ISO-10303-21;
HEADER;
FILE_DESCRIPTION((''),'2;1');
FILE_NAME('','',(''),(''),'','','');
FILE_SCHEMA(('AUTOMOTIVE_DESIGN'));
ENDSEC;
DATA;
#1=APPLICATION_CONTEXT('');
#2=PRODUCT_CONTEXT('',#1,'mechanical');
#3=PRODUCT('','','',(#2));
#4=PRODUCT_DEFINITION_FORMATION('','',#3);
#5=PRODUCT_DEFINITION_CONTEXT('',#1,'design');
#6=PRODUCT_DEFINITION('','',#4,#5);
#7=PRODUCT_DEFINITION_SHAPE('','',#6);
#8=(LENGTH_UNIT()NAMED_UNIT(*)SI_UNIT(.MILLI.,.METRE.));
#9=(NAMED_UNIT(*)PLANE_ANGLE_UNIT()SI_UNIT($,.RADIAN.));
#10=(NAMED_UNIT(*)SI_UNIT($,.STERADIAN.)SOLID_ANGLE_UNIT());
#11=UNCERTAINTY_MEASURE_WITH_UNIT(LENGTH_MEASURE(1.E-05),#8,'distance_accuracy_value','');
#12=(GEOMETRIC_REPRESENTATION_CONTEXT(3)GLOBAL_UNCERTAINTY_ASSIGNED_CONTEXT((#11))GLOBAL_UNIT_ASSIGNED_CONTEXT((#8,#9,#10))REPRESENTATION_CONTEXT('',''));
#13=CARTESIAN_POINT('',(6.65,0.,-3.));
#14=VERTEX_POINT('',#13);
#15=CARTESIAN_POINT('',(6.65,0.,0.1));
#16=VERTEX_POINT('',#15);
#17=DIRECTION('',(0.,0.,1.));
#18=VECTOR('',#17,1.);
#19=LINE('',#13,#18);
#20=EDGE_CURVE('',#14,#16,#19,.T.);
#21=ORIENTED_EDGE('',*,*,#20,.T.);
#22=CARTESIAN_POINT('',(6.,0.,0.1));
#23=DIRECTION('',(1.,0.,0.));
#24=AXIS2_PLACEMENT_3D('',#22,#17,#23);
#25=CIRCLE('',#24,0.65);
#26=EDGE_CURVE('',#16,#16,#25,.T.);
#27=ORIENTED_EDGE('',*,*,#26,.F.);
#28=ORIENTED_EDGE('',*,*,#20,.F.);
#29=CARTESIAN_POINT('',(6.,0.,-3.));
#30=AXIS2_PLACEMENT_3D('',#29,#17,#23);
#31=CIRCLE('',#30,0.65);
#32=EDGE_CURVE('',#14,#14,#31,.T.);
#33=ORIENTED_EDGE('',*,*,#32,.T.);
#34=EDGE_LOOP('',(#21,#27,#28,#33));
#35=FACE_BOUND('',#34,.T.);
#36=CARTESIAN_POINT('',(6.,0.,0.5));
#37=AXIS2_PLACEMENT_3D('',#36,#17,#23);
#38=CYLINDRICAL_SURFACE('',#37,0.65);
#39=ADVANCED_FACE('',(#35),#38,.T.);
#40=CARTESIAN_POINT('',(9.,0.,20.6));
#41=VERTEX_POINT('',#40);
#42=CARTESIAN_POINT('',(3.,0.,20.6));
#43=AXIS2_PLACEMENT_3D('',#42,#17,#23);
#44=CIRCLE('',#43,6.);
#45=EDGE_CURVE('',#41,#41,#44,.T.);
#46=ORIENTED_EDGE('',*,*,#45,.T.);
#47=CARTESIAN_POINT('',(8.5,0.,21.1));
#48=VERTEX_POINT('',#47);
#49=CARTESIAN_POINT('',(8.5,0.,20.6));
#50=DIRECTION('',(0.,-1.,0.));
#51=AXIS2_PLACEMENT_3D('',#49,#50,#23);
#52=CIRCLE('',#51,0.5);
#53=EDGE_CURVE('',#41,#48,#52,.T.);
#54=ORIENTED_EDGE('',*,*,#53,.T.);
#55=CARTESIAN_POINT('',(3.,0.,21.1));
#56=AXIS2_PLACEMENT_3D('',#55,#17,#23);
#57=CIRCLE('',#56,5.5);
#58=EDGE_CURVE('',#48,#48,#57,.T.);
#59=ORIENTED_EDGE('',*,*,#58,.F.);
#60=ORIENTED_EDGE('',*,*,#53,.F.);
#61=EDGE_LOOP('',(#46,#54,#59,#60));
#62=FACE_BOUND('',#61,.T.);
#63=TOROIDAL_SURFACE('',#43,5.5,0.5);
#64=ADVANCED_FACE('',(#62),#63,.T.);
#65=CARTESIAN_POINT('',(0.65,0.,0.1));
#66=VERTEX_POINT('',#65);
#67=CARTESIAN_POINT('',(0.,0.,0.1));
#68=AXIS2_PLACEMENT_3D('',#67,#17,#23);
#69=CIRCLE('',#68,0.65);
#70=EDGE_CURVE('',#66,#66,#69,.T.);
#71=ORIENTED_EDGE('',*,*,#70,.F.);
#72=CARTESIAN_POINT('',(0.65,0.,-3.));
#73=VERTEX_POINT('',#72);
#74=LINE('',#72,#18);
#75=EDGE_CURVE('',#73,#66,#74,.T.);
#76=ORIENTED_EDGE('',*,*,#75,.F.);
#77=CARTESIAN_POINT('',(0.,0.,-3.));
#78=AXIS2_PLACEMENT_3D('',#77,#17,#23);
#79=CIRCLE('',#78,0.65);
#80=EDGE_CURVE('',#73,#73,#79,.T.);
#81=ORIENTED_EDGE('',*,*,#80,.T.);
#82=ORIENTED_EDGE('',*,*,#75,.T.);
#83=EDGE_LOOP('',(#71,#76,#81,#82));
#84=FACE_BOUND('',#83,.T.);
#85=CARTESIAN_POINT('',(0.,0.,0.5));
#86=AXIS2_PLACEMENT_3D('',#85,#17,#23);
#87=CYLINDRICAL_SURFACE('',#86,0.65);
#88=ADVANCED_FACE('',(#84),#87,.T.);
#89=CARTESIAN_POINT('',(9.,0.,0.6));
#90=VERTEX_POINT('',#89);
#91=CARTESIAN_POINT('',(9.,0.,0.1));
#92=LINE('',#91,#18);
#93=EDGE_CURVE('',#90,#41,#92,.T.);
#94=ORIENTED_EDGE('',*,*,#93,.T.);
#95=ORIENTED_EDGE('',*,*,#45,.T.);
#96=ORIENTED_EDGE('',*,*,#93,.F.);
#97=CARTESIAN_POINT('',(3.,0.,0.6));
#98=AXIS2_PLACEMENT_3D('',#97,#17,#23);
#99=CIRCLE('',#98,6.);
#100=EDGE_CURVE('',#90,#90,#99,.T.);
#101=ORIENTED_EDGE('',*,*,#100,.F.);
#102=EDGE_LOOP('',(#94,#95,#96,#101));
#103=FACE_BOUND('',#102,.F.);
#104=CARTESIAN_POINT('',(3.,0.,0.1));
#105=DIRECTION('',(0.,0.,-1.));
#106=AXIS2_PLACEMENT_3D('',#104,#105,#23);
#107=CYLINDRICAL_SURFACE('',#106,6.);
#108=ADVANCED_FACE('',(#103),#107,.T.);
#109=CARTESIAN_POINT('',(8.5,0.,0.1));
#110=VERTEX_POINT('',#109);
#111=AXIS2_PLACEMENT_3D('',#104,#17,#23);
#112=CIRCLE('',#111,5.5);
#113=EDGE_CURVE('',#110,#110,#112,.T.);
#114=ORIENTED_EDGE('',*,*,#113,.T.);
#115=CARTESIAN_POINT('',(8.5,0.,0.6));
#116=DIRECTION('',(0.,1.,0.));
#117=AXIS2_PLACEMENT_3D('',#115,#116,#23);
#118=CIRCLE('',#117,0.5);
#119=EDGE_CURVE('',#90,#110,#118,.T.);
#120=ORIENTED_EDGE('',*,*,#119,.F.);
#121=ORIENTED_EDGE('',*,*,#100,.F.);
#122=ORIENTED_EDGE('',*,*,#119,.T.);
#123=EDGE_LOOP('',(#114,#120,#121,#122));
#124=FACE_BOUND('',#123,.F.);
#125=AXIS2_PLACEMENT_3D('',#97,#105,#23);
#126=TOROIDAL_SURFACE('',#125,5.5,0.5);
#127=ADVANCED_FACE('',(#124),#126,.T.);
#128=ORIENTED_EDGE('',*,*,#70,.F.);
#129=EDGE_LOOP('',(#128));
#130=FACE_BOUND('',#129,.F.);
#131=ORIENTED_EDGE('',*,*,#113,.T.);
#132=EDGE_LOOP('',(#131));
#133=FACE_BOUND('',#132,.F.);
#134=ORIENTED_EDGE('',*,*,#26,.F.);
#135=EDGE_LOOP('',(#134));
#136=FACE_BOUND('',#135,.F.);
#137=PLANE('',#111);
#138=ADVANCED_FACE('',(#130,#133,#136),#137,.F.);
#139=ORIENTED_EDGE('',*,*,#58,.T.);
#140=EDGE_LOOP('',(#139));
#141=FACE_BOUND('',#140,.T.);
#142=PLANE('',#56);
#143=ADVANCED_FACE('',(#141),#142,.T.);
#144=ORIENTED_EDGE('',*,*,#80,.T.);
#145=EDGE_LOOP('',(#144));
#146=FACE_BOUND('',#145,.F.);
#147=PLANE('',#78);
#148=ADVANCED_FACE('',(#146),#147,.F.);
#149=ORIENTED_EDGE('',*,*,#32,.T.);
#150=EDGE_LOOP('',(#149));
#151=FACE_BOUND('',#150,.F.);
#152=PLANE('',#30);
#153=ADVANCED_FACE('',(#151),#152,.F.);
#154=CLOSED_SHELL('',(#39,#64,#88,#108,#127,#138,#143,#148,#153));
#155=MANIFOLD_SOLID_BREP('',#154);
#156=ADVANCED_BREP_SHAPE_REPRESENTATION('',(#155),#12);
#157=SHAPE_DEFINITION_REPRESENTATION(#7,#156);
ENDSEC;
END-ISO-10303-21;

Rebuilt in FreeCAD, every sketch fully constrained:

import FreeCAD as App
import Part
import Sketcher


def edges_at(feature, points):
    """Names of the edges that pass closest to the given points."""
    edges = feature.Shape.Edges
    near = lambda p: min(range(len(edges)), key=lambda i: edges[i].distToShape(Part.Vertex(*p))[0])
    return sorted({f"Edge{near(p) + 1}" for p in points})

doc = App.newDocument("Part")
body = doc.addObject("PartDesign::Body", "Body")
body.AllowCompound = True

sketch1 = body.newObject("Sketcher::SketchObject", "Sketch")
sketch1.AttachmentSupport = (doc.getObject("XY_Plane"), [""])
sketch1.MapMode = "FlatFace"
sketch1.AttachmentOffset = App.Placement(App.Vector(0, 0, 0.5), App.Rotation())
sketch1.addGeometry(Part.Circle(App.Vector(0, 0, 0), App.Vector(0, 0, 1), 0.7), False)
sketch1.addGeometry(Part.Circle(App.Vector(6, 0, 0), App.Vector(0, 0, 1), 0.7), False)
sketch1.addConstraint(Sketcher.Constraint("Coincident", 0, 3, -1, 1))
sketch1.addConstraint(Sketcher.Constraint("Equal", 0, 1))
sketch1.addConstraint(Sketcher.Constraint("PointOnObject", 1, 3, -1))
sketch1.addConstraint(Sketcher.Constraint("Diameter", 0, 1.3))
sketch1.addConstraint(Sketcher.Constraint("DistanceX", -1, 1, 1, 3, 6.0))
pad1 = body.newObject("PartDesign::Pad", "Pad")
pad1.Profile = sketch1
pad1.Type = "TwoLengths"
pad1.Length = 10.5
pad1.Length2 = 3.5
body2 = doc.addObject("PartDesign::Body", "Body001")

sketch2 = body2.newObject("Sketcher::SketchObject", "Sketch001")
sketch2.AttachmentSupport = (doc.getObject("XY_Plane001"), [""])
sketch2.MapMode = "FlatFace"
sketch2.AttachmentOffset = App.Placement(App.Vector(0, 0, 0.1), App.Rotation())
sketch2.addGeometry(Part.Circle(App.Vector(3, 0, 0), App.Vector(0, 0, 1), 6), False)
sketch2.addConstraint(Sketcher.Constraint("PointOnObject", 0, 3, -1))
sketch2.addConstraint(Sketcher.Constraint("Diameter", 0, 12.0))
sketch2.addConstraint(Sketcher.Constraint("DistanceX", -1, 1, 0, 3, 3.0))
pad2 = body2.newObject("PartDesign::Pad", "Pad001")
pad2.Profile = sketch2
pad2.Length = 21
doc.recompute()

fillet = body2.newObject("PartDesign::Fillet", "Fillet")
fillet.Base = (pad2, edges_at(pad2, [(-3, 0, 0.1), (-3, 0, 21.1)]))
fillet.Radius = 0.5
doc.recompute()

boolean = body2.newObject("PartDesign::Boolean", "Boolean")
boolean.Type = "Fuse"
boolean.addObjects([body])

doc.recompute()
